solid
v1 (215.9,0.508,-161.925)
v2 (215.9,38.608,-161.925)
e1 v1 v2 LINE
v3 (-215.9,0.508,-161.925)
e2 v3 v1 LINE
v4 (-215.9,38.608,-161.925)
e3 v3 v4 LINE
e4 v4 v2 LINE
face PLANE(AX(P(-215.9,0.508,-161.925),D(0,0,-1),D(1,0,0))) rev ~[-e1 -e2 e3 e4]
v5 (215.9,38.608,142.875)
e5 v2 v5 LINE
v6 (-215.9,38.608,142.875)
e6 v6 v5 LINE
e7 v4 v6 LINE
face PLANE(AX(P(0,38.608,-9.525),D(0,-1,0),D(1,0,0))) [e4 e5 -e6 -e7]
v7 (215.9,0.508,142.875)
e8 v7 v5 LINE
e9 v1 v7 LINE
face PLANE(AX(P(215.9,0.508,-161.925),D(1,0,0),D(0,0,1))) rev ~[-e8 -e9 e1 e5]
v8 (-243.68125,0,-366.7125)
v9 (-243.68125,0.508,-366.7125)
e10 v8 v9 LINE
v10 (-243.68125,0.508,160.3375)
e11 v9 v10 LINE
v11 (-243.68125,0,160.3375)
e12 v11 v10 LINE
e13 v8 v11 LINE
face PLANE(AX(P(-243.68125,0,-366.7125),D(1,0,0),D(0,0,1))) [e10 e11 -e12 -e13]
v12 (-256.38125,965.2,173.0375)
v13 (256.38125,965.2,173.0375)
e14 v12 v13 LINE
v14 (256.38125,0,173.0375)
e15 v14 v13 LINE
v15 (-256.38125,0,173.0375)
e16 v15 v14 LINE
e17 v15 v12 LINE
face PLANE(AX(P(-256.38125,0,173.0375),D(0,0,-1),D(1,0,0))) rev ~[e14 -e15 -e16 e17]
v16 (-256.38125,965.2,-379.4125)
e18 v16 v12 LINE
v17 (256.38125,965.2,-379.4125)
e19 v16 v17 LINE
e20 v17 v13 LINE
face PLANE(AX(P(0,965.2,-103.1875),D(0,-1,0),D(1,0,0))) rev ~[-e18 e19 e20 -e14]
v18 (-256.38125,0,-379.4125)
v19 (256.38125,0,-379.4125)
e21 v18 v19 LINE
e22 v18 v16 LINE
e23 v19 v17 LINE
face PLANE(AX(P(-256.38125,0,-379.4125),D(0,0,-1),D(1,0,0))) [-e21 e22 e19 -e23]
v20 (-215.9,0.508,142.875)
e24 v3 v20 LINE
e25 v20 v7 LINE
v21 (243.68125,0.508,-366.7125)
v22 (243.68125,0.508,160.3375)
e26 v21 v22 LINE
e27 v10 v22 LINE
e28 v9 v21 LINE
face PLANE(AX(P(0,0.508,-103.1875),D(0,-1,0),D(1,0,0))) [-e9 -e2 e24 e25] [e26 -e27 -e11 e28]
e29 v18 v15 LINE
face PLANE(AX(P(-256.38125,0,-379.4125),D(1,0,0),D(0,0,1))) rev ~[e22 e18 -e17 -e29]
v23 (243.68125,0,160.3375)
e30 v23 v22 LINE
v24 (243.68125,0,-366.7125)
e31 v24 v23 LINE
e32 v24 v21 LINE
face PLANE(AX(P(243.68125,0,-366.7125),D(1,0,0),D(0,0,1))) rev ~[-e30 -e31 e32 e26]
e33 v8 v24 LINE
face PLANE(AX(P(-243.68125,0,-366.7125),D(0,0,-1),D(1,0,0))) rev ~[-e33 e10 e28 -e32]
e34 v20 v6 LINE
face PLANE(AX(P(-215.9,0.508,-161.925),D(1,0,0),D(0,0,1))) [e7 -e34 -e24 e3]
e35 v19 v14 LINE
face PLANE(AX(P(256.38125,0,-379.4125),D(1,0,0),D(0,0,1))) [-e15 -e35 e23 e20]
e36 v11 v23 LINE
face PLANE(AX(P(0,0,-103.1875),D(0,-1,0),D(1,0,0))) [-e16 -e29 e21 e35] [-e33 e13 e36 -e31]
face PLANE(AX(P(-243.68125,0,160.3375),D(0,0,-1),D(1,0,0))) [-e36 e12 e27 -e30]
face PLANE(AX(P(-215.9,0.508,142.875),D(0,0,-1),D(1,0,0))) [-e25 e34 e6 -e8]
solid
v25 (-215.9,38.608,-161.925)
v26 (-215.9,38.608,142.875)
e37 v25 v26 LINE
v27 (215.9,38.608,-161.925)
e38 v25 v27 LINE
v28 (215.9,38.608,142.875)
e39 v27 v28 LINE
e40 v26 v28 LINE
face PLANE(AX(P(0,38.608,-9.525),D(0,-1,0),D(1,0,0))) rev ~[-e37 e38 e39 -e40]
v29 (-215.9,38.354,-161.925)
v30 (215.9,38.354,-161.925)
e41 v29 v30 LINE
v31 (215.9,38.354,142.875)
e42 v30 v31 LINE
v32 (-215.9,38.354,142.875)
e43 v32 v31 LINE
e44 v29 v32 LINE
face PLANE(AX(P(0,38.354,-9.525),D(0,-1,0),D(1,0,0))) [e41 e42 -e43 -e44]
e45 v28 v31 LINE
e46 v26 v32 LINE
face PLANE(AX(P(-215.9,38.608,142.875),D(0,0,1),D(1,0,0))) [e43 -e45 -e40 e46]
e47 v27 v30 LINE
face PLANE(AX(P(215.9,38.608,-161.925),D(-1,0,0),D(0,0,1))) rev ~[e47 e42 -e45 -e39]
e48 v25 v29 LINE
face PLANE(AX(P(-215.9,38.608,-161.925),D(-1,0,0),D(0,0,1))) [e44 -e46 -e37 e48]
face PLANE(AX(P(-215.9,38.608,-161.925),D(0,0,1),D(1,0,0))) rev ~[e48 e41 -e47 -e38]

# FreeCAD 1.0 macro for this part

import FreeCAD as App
import Part
import Sketcher
Q = App.Units.Quantity

doc = App.newDocument("Part")
body = doc.addObject("PartDesign::Body", "Body")

sketch1 = body.newObject("Sketcher::SketchObject", "Sketch")
sketch1.AttachmentSupport = (doc.getObject("XZ_Plane"), [""])
sketch1.MapMode = "FlatFace"
sketch1.addGeometry([
    Part.LineSegment(App.Vector(-256, 173, 0), App.Vector(-256, -379, 0)),
    Part.LineSegment(App.Vector(-256, -379, 0), App.Vector(256, -379, 0)),
    Part.LineSegment(App.Vector(256, -379, 0), App.Vector(256, 173, 0)),
    Part.LineSegment(App.Vector(256, 173, 0), App.Vector(-256, 173, 0)),
], False)
sketch1.addConstraint([
    Sketcher.Constraint("Coincident", 0, 2, 1, 1),
    Sketcher.Constraint("Coincident", 1, 2, 2, 1),
    Sketcher.Constraint("Coincident", 2, 2, 3, 1),
    Sketcher.Constraint("Coincident", 3, 2, 0, 1),
    Sketcher.Constraint("Vertical", 0),
    Sketcher.Constraint("Horizontal", 1),
    Sketcher.Constraint("Vertical", 2),
    Sketcher.Constraint("Horizontal", 3),
    Sketcher.Constraint("DistanceY", 0, 2, 0, 1, Q("21.75 in")),
    Sketcher.Constraint("DistanceX", 1, 1, 1, 2, Q("20.1875 in")),
    Sketcher.Constraint("DistanceX", 0, 2, -1, 1, Q("10.09375 in")),
    Sketcher.Constraint("DistanceY", 0, 2, -1, 1, Q("14.9375 in")),
])
pad1 = body.newObject("PartDesign::Pad", "Pad")
pad1.Profile = sketch1
pad1.Length = Q("38 in")
pad1.Reversed = True

sketch2 = body.newObject("Sketcher::SketchObject", "Sketch001")
sketch2.AttachmentSupport = (doc.getObject("XZ_Plane"), [""])
sketch2.MapMode = "FlatFace"
sketch2.addGeometry([
    Part.LineSegment(App.Vector(-244, 160, 0), App.Vector(-244, -367, 0)),
    Part.LineSegment(App.Vector(-244, -367, 0), App.Vector(244, -367, 0)),
    Part.LineSegment(App.Vector(244, -367, 0), App.Vector(244, 160, 0)),
    Part.LineSegment(App.Vector(244, 160, 0), App.Vector(-244, 160, 0)),
], False)
sketch2.addConstraint([
    Sketcher.Constraint("Coincident", 0, 2, 1, 1),
    Sketcher.Constraint("Coincident", 1, 2, 2, 1),
    Sketcher.Constraint("Coincident", 2, 2, 3, 1),
    Sketcher.Constraint("Coincident", 3, 2, 0, 1),
    Sketcher.Constraint("Vertical", 0),
    Sketcher.Constraint("Horizontal", 1),
    Sketcher.Constraint("Vertical", 2),
    Sketcher.Constraint("Horizontal", 3),
    Sketcher.Constraint("DistanceY", 0, 2, 0, 1, Q("20.75 in")),
    Sketcher.Constraint("DistanceX", 1, 1, 1, 2, Q("19.1875 in")),
    Sketcher.Constraint("DistanceX", 0, 2, -1, 1, Q("9.59375 in")),
    Sketcher.Constraint("DistanceY", 0, 2, -1, 1, Q("14.4375 in")),
])
pocket1 = body.newObject("PartDesign::Pocket", "Pocket")
pocket1.Profile = sketch2
pocket1.Length = Q("0.02 in")

sketch3 = body.newObject("Sketcher::SketchObject", "Sketch002")
sketch3.AttachmentSupport = (doc.getObject("XZ_Plane"), [""])
sketch3.MapMode = "FlatFace"
sketch3.AttachmentOffset = App.Placement(App.Vector(0, 0, -0.02 * 25.4), App.Rotation())
sketch3.addGeometry([
    Part.LineSegment(App.Vector(-216, 143, 0), App.Vector(-216, -162, 0)),
    Part.LineSegment(App.Vector(-216, -162, 0), App.Vector(216, -162, 0)),
    Part.LineSegment(App.Vector(216, -162, 0), App.Vector(216, 143, 0)),
    Part.LineSegment(App.Vector(216, 143, 0), App.Vector(-216, 143, 0)),
], False)
sketch3.addConstraint([
    Sketcher.Constraint("Coincident", 0, 2, 1, 1),
    Sketcher.Constraint("Coincident", 1, 2, 2, 1),
    Sketcher.Constraint("Coincident", 2, 2, 3, 1),
    Sketcher.Constraint("Coincident", 3, 2, 0, 1),
    Sketcher.Constraint("Vertical", 0),
    Sketcher.Constraint("Horizontal", 1),
    Sketcher.Constraint("Vertical", 2),
    Sketcher.Constraint("Horizontal", 3),
    Sketcher.Constraint("DistanceX", 1, 1, 1, 2, Q("17 in")),
    Sketcher.Constraint("DistanceY", 0, 2, 0, 1, Q("12 in")),
    Sketcher.Constraint("DistanceX", 0, 2, -1, 1, Q("8.5 in")),
    Sketcher.Constraint("DistanceY", 0, 2, -1, 1, Q("6.375 in")),
])
pocket2 = body.newObject("PartDesign::Pocket", "Pocket001")
pocket2.Profile = sketch3
pocket2.Length = Q("1.5 in")
body2 = doc.addObject("PartDesign::Body", "Body001")

sketch4 = body2.newObject("Sketcher::SketchObject", "Sketch003")
sketch4.AttachmentSupport = (doc.getObject("XZ_Plane001"), [""])
sketch4.MapMode = "FlatFace"
sketch4.AttachmentOffset = App.Placement(App.Vector(0, 0, -1.52 * 25.4), App.Rotation())
sketch4.addGeometry([
    Part.LineSegment(App.Vector(-216, 143, 0), App.Vector(-216, -162, 0)),
    Part.LineSegment(App.Vector(-216, -162, 0), App.Vector(216, -162, 0)),
    Part.LineSegment(App.Vector(216, -162, 0), App.Vector(216, 143, 0)),
    Part.LineSegment(App.Vector(216, 143, 0), App.Vector(-216, 143, 0)),
], False)
sketch4.addConstraint([
    Sketcher.Constraint("Coincident", 0, 2, 1, 1),
    Sketcher.Constraint("Coincident", 1, 2, 2, 1),
    Sketcher.Constraint("Coincident", 2, 2, 3, 1),
    Sketcher.Constraint("Coincident", 3, 2, 0, 1),
    Sketcher.Constraint("Vertical", 0),
    Sketcher.Constraint("Horizontal", 1),
    Sketcher.Constraint("Vertical", 2),
    Sketcher.Constraint("Horizontal", 3),
    Sketcher.Constraint("DistanceX", 1, 1, 1, 2, Q("17 in")),
    Sketcher.Constraint("DistanceY", 0, 2, 0, 1, Q("12 in")),
    Sketcher.Constraint("DistanceX", 0, 2, -1, 1, Q("8.5 in")),
    Sketcher.Constraint("DistanceY", 0, 2, -1, 1, Q("6.375 in")),
])
pad2 = body2.newObject("PartDesign::Pad", "Pad001")
pad2.Profile = sketch4
pad2.Length = Q("0.01 in")

doc.recompute()
